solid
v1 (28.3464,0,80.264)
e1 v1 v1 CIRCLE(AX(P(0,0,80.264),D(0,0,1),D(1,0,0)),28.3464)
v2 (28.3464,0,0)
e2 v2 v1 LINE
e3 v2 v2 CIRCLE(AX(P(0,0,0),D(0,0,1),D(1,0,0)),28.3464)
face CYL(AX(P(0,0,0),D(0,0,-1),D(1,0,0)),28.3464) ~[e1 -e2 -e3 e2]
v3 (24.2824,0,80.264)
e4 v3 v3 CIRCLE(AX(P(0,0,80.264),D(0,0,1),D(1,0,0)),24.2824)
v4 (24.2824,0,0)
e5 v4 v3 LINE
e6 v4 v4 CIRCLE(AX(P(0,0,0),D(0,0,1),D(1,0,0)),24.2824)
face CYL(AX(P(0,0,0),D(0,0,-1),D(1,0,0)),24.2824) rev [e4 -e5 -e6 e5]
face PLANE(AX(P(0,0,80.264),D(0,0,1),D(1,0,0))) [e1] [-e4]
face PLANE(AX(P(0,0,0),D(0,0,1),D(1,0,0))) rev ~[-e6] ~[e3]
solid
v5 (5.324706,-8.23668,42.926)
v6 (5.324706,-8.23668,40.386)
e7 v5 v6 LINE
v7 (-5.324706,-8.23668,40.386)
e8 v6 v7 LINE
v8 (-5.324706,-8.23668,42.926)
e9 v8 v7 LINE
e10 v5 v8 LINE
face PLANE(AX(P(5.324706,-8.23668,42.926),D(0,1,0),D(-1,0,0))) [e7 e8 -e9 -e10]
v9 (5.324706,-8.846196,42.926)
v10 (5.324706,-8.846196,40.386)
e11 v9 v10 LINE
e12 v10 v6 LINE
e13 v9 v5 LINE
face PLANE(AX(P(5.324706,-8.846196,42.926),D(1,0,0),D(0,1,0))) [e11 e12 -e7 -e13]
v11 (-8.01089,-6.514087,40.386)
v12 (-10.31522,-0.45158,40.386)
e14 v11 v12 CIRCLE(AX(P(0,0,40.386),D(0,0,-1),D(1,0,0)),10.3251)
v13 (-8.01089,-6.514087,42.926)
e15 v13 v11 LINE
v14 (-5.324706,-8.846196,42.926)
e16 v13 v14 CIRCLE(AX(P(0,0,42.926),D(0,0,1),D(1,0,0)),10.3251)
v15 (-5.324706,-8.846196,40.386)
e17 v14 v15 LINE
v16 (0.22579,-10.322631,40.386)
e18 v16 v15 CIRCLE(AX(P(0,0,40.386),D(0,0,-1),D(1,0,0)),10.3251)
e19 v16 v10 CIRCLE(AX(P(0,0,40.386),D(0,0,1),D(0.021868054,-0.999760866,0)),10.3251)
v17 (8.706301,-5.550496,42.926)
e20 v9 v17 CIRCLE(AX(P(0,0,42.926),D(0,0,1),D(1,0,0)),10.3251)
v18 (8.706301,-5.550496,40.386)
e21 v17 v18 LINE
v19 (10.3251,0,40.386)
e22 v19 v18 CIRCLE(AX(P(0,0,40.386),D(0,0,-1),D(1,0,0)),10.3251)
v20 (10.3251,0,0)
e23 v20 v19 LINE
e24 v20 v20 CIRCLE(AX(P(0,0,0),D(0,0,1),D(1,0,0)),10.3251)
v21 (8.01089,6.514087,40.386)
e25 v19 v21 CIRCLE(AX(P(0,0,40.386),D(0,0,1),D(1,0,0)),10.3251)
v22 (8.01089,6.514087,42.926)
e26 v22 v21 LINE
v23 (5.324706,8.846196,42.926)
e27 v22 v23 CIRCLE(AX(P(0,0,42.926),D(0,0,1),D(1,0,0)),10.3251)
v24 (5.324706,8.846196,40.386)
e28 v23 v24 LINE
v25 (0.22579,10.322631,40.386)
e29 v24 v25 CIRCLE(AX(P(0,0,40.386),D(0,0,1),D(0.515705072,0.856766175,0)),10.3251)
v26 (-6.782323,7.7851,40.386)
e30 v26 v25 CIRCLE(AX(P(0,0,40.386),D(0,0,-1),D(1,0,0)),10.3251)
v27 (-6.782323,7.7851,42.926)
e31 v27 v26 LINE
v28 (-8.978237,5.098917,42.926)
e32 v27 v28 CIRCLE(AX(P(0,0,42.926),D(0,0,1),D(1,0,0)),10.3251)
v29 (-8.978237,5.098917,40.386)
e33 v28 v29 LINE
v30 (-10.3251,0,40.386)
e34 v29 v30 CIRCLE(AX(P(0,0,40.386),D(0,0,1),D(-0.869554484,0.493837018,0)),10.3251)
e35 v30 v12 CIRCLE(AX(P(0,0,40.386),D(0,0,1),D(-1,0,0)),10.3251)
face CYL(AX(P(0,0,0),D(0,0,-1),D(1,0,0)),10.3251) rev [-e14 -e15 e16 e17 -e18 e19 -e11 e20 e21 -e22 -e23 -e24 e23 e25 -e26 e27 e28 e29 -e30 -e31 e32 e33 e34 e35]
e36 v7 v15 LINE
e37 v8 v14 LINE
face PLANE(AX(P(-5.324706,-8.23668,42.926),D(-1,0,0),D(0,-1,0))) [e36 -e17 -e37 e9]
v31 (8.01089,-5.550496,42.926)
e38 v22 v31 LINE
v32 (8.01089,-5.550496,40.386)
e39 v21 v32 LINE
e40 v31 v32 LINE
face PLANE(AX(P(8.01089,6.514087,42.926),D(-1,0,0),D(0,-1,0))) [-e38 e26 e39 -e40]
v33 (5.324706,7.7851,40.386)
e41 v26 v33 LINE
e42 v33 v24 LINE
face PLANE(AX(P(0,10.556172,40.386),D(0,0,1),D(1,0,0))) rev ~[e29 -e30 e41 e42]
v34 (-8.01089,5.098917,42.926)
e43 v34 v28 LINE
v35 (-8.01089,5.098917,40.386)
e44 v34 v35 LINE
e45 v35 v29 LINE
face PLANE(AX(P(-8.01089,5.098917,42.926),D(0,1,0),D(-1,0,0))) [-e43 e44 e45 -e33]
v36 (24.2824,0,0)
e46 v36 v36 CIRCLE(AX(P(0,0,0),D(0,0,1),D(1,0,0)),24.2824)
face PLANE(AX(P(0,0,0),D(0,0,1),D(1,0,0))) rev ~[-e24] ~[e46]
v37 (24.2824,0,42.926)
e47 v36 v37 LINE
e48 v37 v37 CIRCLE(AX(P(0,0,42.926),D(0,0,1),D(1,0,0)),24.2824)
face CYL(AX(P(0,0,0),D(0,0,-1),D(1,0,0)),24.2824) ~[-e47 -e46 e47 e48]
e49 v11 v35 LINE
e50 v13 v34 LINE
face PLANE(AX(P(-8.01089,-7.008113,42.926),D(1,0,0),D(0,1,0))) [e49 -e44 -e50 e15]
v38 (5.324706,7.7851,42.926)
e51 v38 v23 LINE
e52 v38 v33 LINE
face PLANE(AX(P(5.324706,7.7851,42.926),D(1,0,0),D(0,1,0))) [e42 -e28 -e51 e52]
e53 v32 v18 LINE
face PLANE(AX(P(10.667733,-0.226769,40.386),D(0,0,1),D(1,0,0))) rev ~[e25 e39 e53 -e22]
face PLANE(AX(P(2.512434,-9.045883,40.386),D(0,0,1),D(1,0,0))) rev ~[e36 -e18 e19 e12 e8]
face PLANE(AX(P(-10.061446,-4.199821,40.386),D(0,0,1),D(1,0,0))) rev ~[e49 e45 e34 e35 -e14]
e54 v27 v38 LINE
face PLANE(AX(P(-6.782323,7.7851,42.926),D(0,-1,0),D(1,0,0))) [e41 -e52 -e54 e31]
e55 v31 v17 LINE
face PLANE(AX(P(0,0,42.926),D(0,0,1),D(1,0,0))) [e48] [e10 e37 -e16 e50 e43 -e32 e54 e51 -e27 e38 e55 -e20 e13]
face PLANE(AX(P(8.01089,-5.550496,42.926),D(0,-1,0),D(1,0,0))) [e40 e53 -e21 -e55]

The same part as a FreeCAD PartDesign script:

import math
import FreeCAD as App
import Part
import Sketcher

V = App.Vector
Q = App.Units.Quantity

doc = App.newDocument("Part")
body = doc.addObject("PartDesign::Body", "Body")

sketch1 = body.newObject("Sketcher::SketchObject", "Sketch")
sketch1.AttachmentSupport = (doc.getObject("XY_Plane"), [""])
sketch1.MapMode = "FlatFace"
sketch1.addGeometry(Part.Circle(V(0, 0, 0), V(0, 0, 1), 28.3464), False)
sketch1.addGeometry(Part.Circle(V(0, 0, 0), V(0, 0, 1), 24.2824), False)
sketch1.addConstraint(Sketcher.Constraint("Coincident", 0, 3, -1, 1))
sketch1.addConstraint(Sketcher.Constraint("Coincident", 1, 3, -1, 1))
sketch1.addConstraint(Sketcher.Constraint("Diameter", 0, Q("2.232 in")))
sketch1.addConstraint(Sketcher.Constraint("Diameter", 1, Q("1.912 in")))
pad1 = body.newObject("PartDesign::Pad", "Pad")
pad1.Profile = sketch1
pad1.Length = Q("3.16 in")
body2 = doc.addObject("PartDesign::Body", "Body001")

sketch2 = body2.newObject("Sketcher::SketchObject", "Sketch001")
sketch2.AttachmentSupport = (doc.getObject("XY_Plane001"), [""])
sketch2.MapMode = "FlatFace"
sketch2.addGeometry(Part.Circle(V(0, 0, 0), V(0, 0, 1), 24.2824), False)
sketch2.addGeometry(Part.Circle(V(0, 0, 0), V(0, 0, 1), 10.3251), False)
sketch2.addConstraint(Sketcher.Constraint("Coincident", 0, 3, -1, 1))
sketch2.addConstraint(Sketcher.Constraint("Coincident", 1, 3, -1, 1))
sketch2.addConstraint(Sketcher.Constraint("Diameter", 0, Q("1.912 in")))
sketch2.addConstraint(Sketcher.Constraint("Diameter", 1, Q("0.813 in")))
pad2 = body2.newObject("PartDesign::Pad", "Pad001")
pad2.Profile = sketch2
pad2.Length = Q("1.69 in")

sketch3 = body2.newObject("Sketcher::SketchObject", "Sketch002")
sketch3.AttachmentSupport = (doc.getObject("XY_Plane001"), [""])
sketch3.MapMode = "FlatFace"
sketch3.AttachmentOffset = App.Placement(V(0, 0, 1.69 * 25.4), App.Rotation())
sketch3.addGeometry(Part.LineSegment(V(0.22579, 10.322631, 0), V(0.22579, 10.789002, 0)), False)
sketch3.addGeometry(Part.LineSegment(V(0.22579, 10.789002, 0), V(-6.782323, 10.789002, 0)), False)
sketch3.addGeometry(Part.LineSegment(V(-6.782323, 10.789002, 0), V(-6.782323, 7.7851, 0)), False)
sketch3.addGeometry(Part.LineSegment(V(-6.782323, 7.7851, 0), V(5.324706, 7.7851, 0)), False)
sketch3.addGeometry(Part.LineSegment(V(5.324706, 7.7851, 0), V(5.324706, 8.846196, 0)), False)
sketch3.addGeometry(Part.ArcOfCircle(Part.Circle(V(0, 0, 0), V(0, 0, 1), 10.3251), math.radians(58.955405), math.radians(88.746953)), False)
sketch3.addGeometry(Part.LineSegment(V(11.014792, 0, 0), V(10.3251, 0, 0)), False)
sketch3.addGeometry(Part.ArcOfCircle(Part.Circle(V(0, 0, 0), V(0, 0, 1), 10.3251), math.radians(0), math.radians(39.116424)), False)
sketch3.addGeometry(Part.LineSegment(V(8.01089, 6.514087, 0), V(8.01089, -5.550496, 0)), False)
sketch3.addGeometry(Part.LineSegment(V(8.01089, -5.550496, 0), V(11.014792, -5.550496, 0)), False)
sketch3.addGeometry(Part.LineSegment(V(11.014792, -5.550496, 0), V(11.014792, 0, 0)), False)
sketch3.addGeometry(Part.LineSegment(V(5.324706, -8.23668, 0), V(-5.324706, -8.23668, 0)), False)
sketch3.addGeometry(Part.LineSegment(V(-5.324706, -8.23668, 0), V(-5.324706, -10.789002, 0)), False)
sketch3.addGeometry(Part.LineSegment(V(-5.324706, -10.789002, 0), V(-0.22579, -10.789002, 0)), False)
sketch3.addGeometry(Part.LineSegment(V(-0.22579, -10.789002, 0), V(-0.22579, -11.240582, 0)), False)
sketch3.addGeometry(Part.LineSegment(V(-0.22579, -11.240582, 0), V(0.22579, -11.240582, 0)), False)
sketch3.addGeometry(Part.LineSegment(V(0.22579, -11.240582, 0), V(0.22579, -10.322631, 0)), False)
sketch3.addGeometry(Part.ArcOfCircle(Part.Circle(V(0, 0, 0), V(0, 0, 1), 10.3251), math.radians(-88.746953), math.radians(-58.955405)), False)
sketch3.addGeometry(Part.LineSegment(V(5.324706, -8.846196, 0), V(5.324706, -8.23668, 0)), False)
sketch3.addGeometry(Part.LineSegment(V(-11.014792, -0.45158, 0), V(-11.014792, -7.008113, 0)), False)
sketch3.addGeometry(Part.LineSegment(V(-11.014792, -7.008113, 0), V(-8.01089, -7.008113, 0)), False)
sketch3.addGeometry(Part.LineSegment(V(-8.01089, -7.008113, 0), V(-8.01089, 5.098917, 0)), False)
sketch3.addGeometry(Part.LineSegment(V(-8.01089, 5.098917, 0), V(-8.978237, 5.098917, 0)), False)
sketch3.addGeometry(Part.ArcOfCircle(Part.Circle(V(0, 0, 0), V(0, 0, 1), 10.3251), math.radians(150.406909), math.radians(180)), False)
sketch3.addGeometry(Part.ArcOfCircle(Part.Circle(V(0, 0, 0), V(0, 0, 1), 10.3251), math.radians(180), math.radians(182.506694)), False)
sketch3.addGeometry(Part.LineSegment(V(-10.31522, -0.45158, 0), V(-11.014792, -0.45158, 0)), False)
sketch3.addConstraint(Sketcher.Constraint("Coincident", 0, 2, 1, 1))
sketch3.addConstraint(Sketcher.Constraint("Coincident", 1, 2, 2, 1))
sketch3.addConstraint(Sketcher.Constraint("Coincident", 2, 2, 3, 1))
sketch3.addConstraint(Sketcher.Constraint("Coincident", 3, 2, 4, 1))
sketch3.addConstraint(Sketcher.Constraint("Coincident", 4, 2, 5, 1))
sketch3.addConstraint(Sketcher.Constraint("Coincident", 5, 2, 0, 1))
sketch3.addConstraint(Sketcher.Constraint("Coincident", 6, 2, 7, 1))
sketch3.addConstraint(Sketcher.Constraint("Coincident", 7, 2, 8, 1))
sketch3.addConstraint(Sketcher.Constraint("Coincident", 8, 2, 9, 1))
sketch3.addConstraint(Sketcher.Constraint("Coincident", 9, 2, 10, 1))
sketch3.addConstraint(Sketcher.Constraint("Coincident", 10, 2, 6, 1))
sketch3.addConstraint(Sketcher.Constraint("Coincident", 11, 2, 12, 1))
sketch3.addConstraint(Sketcher.Constraint("Coincident", 12, 2, 13, 1))
sketch3.addConstraint(Sketcher.Constraint("Coincident", 13, 2, 14, 1))
sketch3.addConstraint(Sketcher.Constraint("Coincident", 14, 2, 15, 1))
sketch3.addConstraint(Sketcher.Constraint("Coincident", 15, 2, 16, 1))
sketch3.addConstraint(Sketcher.Constraint("Coincident", 16, 2, 17, 1))
sketch3.addConstraint(Sketcher.Constraint("Coincident", 17, 2, 18, 1))
sketch3.addConstraint(Sketcher.Constraint("Coincident", 18, 2, 11, 1))
sketch3.addConstraint(Sketcher.Constraint("Coincident", 19, 2, 20, 1))
sketch3.addConstraint(Sketcher.Constraint("Coincident", 20, 2, 21, 1))
sketch3.addConstraint(Sketcher.Constraint("Coincident", 21, 2, 22, 1))
sketch3.addConstraint(Sketcher.Constraint("Coincident", 22, 2, 23, 1))
sketch3.addConstraint(Sketcher.Constraint("Tangent", 23, 2, 24, 1))
sketch3.addConstraint(Sketcher.Constraint("Coincident", 24, 2, 25, 1))
sketch3.addConstraint(Sketcher.Constraint("Coincident", 25, 2, 19, 1))
sketch3.addConstraint(Sketcher.Constraint("Vertical", 0))
sketch3.addConstraint(Sketcher.Constraint("Horizontal", 1))
sketch3.addConstraint(Sketcher.Constraint("Vertical", 2))
sketch3.addConstraint(Sketcher.Constraint("Horizontal", 3))
sketch3.addConstraint(Sketcher.Constraint("Vertical", 4))
sketch3.addConstraint(Sketcher.Constraint("Horizontal", 6))
sketch3.addConstraint(Sketcher.Constraint("Vertical", 8))
sketch3.addConstraint(Sketcher.Constraint("Horizontal", 9))
sketch3.addConstraint(Sketcher.Constraint("Vertical", 10))
sketch3.addConstraint(Sketcher.Constraint("Horizontal", 11))
sketch3.addConstraint(Sketcher.Constraint("Vertical", 12))
sketch3.addConstraint(Sketcher.Constraint("Horizontal", 13))
sketch3.addConstraint(Sketcher.Constraint("Vertical", 14))
sketch3.addConstraint(Sketcher.Constraint("Horizontal", 15))
sketch3.addConstraint(Sketcher.Constraint("Vertical", 16))
sketch3.addConstraint(Sketcher.Constraint("Vertical", 18))
sketch3.addConstraint(Sketcher.Constraint("Vertical", 19))
sketch3.addConstraint(Sketcher.Constraint("Horizontal", 20))
sketch3.addConstraint(Sketcher.Constraint("Vertical", 21))
sketch3.addConstraint(Sketcher.Constraint("Horizontal", 22))
sketch3.addConstraint(Sketcher.Constraint("Horizontal", 25))
sketch3.addConstraint(Sketcher.Constraint("Coincident", 5, 3, -1, 1))
sketch3.addConstraint(Sketcher.Constraint("Coincident", 7, 3, -1, 1))
sketch3.addConstraint(Sketcher.Constraint("Coincident", 17, 3, -1, 1))
sketch3.addConstraint(Sketcher.Constraint("Coincident", 23, 3, -1, 1))
sketch3.addConstraint(Sketcher.Constraint("Equal", 5, 7))
sketch3.addConstraint(Sketcher.Constraint("Equal", 7, 17))
sketch3.addConstraint(Sketcher.Constraint("Equal", 17, 23))
sketch3.addConstraint(Sketcher.Constraint("Equal", 23, 24))
sketch3.addConstraint(Sketcher.Constraint("Symmetric", 0, 2, 13, 2, -1, 1))
sketch3.addConstraint(Sketcher.Constraint("PointOnObject", 6, 2, -1))
sketch3.addConstraint(Sketcher.Constraint("PointOnObject", 23, 2, -1))
sketch3.addConstraint(Sketcher.Constraint("Vertical", 5, 2, 15, 2))
sketch3.addConstraint(Sketcher.Constraint("Vertical", 4, 2, 17, 2))
sketch3.addConstraint(Sketcher.Constraint("Equal", 9, 20))
sketch3.addConstraint(Sketcher.Constraint("Equal", 20, 2))
sketch3.addConstraint(Sketcher.Constraint("Equal", 15, 14))
sketch3.addConstraint(Sketcher.Constraint("Equal", 3, 21))
sketch3.addConstraint(Sketcher.Constraint("Radius", 5, Q("0.4065 in")))
sketch3.addConstraint(Sketcher.Constraint("DistanceY", -1, 1, 2, 2, Q("0.3065 in")))
sketch3.addConstraint(Sketcher.Constraint("DistanceX", 5, 2, 7, 2, Q("0.3065 in")))
sketch3.addConstraint(Sketcher.Constraint("DistanceX", 20, 2, 13, 2, Q("0.3065 in")))
sketch3.addConstraint(Sketcher.Constraint("DistanceX", 3, 1, 3, 2, 12.10703))
sketch3.addConstraint(Sketcher.Constraint("DistanceX", 15, 1, 15, 2, 0.45158))
sketch3.addConstraint(Sketcher.Constraint("DistanceY", 0, 1, 0, 2, 0.466371))
sketch3.addConstraint(Sketcher.Constraint("DistanceY", 17, 2, 8, 2, 3.2957))
sketch3.addConstraint(Sketcher.Constraint("DistanceX", 1, 2, 1, 1, 7.008113))
sketch3.addConstraint(Sketcher.Constraint("DistanceX", 11, 2, 11, 1, 10.649413))
sketch3.addConstraint(Sketcher.Constraint("DistanceX", 22, 2, 22, 1, 0.967347))
sketch3.addConstraint(Sketcher.Constraint("DistanceX", 25, 2, 25, 1, 0.699572))
sketch3.addConstraint(Sketcher.Constraint("DistanceY", 12, 2, 12, 1, 2.552323))
pad3 = body2.newObject("PartDesign::Pad", "Pad002")
pad3.Profile = sketch3
pad3.Length = Q("0.1 in")
pad3.Reversed = True

doc.recompute()
